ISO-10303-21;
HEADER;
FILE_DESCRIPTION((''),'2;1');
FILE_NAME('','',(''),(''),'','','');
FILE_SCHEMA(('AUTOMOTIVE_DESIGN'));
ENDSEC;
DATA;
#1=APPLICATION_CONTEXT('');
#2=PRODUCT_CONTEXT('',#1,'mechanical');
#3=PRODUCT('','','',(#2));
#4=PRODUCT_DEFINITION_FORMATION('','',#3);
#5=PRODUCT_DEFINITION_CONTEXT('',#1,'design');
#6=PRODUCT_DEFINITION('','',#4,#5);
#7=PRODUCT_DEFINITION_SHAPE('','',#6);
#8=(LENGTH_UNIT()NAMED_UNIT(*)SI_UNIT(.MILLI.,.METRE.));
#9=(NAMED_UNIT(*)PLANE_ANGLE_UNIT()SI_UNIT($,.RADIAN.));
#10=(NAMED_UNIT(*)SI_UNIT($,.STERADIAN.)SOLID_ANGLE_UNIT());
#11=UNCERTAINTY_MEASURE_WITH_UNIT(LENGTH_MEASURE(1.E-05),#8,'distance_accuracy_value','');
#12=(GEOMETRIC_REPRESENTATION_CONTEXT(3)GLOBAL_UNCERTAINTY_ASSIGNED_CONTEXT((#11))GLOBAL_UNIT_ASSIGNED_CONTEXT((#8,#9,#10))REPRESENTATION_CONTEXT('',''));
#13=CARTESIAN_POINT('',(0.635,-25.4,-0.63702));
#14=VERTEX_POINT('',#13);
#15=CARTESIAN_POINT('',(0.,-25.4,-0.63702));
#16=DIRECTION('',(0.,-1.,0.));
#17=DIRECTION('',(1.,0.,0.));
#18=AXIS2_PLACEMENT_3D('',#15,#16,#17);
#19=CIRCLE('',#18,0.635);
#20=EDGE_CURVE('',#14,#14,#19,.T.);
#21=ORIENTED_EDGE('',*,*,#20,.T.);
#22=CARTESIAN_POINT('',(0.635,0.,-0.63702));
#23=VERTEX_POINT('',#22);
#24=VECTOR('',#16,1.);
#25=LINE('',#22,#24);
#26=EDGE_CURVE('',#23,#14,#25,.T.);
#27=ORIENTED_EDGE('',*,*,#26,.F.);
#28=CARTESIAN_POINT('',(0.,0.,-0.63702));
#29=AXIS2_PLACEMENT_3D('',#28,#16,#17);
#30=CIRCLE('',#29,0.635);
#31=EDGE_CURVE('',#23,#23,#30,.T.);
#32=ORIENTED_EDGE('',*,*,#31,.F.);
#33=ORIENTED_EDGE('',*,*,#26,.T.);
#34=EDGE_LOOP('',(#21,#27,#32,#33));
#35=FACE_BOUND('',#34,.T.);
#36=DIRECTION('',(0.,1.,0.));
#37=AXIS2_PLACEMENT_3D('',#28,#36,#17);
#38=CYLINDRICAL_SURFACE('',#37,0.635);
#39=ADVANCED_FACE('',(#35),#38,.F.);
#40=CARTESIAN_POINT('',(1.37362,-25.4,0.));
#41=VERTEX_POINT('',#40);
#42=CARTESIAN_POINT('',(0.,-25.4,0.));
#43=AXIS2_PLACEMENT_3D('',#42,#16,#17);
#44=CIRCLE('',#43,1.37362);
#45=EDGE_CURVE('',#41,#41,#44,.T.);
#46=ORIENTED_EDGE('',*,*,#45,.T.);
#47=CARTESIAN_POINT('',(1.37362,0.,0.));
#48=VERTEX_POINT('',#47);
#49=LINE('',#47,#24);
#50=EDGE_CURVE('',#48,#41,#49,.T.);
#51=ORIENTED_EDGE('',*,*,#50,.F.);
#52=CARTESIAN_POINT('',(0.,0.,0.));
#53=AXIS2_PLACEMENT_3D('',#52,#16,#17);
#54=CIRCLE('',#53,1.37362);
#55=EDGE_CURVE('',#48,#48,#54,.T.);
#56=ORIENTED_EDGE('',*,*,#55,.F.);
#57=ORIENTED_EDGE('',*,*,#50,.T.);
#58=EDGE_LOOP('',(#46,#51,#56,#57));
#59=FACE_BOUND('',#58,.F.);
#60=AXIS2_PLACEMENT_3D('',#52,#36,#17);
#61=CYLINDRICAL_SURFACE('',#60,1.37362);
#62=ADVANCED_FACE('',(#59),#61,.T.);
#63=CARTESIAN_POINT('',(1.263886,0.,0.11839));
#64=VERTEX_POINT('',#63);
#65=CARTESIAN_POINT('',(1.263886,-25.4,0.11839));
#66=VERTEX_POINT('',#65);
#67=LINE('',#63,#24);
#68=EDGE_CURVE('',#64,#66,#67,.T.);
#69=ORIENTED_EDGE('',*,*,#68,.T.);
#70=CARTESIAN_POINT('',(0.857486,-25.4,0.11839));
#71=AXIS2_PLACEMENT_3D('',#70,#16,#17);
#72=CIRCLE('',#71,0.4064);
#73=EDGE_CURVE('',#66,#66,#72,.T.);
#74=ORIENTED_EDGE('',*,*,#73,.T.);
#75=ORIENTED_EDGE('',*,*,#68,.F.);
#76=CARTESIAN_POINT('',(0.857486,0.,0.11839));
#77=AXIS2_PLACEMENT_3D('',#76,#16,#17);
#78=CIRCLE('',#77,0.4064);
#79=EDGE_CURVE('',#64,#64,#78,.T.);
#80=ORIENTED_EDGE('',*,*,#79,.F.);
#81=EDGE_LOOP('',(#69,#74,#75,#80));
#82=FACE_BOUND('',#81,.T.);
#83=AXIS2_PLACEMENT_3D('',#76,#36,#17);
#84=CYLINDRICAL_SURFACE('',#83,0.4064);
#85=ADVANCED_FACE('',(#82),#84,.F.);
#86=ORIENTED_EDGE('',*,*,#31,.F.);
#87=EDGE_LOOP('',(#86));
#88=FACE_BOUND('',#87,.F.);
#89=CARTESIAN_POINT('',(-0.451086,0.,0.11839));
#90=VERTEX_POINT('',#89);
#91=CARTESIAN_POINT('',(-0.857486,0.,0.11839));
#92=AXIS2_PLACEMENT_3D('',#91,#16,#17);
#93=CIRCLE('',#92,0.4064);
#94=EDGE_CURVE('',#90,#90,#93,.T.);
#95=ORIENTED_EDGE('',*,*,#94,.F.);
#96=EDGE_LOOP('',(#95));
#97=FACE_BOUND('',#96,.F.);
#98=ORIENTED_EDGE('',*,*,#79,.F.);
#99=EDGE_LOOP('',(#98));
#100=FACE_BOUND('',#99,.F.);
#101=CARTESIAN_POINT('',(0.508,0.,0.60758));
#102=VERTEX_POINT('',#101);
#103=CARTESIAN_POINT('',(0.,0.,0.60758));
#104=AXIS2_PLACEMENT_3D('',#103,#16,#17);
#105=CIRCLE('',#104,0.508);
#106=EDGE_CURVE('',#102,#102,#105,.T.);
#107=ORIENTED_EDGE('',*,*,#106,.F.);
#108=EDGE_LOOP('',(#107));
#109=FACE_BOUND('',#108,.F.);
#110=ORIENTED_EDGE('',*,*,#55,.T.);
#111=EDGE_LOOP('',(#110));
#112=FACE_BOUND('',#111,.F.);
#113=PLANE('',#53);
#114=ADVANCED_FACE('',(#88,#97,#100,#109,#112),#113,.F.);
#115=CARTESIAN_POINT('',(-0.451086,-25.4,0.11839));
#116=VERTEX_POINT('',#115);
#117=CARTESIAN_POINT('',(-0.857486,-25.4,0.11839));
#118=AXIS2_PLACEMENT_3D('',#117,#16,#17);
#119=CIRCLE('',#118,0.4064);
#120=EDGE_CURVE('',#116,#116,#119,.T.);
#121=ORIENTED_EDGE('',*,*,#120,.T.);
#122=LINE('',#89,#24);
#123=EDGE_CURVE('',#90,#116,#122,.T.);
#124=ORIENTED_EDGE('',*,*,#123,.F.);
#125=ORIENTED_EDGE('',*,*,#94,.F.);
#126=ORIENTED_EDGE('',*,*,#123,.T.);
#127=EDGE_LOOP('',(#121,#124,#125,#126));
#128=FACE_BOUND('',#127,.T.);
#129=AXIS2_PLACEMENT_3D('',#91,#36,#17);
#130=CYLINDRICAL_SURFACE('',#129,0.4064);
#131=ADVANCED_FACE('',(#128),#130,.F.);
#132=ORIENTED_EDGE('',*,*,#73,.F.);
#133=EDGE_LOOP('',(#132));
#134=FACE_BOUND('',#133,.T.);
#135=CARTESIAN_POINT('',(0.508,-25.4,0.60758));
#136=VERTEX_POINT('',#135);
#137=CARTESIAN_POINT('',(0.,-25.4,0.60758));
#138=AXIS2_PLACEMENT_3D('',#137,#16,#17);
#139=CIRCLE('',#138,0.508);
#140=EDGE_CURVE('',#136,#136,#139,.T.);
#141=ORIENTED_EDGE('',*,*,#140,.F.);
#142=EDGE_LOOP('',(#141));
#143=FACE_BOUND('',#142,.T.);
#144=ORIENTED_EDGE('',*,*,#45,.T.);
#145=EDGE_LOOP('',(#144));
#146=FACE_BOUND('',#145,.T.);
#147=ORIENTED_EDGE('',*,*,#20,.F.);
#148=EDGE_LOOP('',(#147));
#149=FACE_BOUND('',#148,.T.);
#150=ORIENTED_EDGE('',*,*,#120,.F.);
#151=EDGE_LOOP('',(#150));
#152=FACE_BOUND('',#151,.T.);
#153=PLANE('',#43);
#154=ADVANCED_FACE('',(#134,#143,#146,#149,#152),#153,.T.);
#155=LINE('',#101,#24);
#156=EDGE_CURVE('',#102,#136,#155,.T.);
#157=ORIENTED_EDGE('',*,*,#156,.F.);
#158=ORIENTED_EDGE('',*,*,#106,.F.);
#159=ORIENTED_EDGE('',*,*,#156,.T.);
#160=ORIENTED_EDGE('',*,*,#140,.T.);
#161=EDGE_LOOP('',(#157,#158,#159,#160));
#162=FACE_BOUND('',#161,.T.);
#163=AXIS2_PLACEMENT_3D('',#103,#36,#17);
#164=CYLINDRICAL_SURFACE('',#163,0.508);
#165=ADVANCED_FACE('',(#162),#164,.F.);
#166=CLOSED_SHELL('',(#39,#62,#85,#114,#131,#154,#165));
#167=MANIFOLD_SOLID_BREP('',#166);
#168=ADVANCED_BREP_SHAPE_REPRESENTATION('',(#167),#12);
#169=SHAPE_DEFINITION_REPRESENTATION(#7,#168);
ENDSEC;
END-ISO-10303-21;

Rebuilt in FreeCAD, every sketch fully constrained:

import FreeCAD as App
import Part
import Sketcher

V = App.Vector
Q = App.Units.Quantity

doc = App.newDocument("Part")
body = doc.addObject("PartDesign::Body", "Body")

# Sketch on XZ plane
sketch1 = body.newObject("Sketcher::SketchObject", "Sketch")
sketch1.AttachmentSupport = (doc.getObject("XZ_Plane"), [""])
sketch1.MapMode = "FlatFace"
sketch1.addGeometry(Part.Circle(V(0, 0, 0), V(0, 0, 1), 1.37), False)
sketch1.addGeometry(Part.Circle(V(0, -0.64, 0), V(0, 0, 1), 0.64), False)
sketch1.addGeometry(Part.Circle(V(-0.86, 0.12, 0), V(0, 0, 1), 0.41), False)
sketch1.addGeometry(Part.Circle(V(0.86, 0.12, 0), V(0, 0, 1), 0.41), False)
sketch1.addGeometry(Part.Circle(V(0, 0.61, 0), V(0, 0, 1), 0.51), False)
sketch1.addConstraint(Sketcher.Constraint("Coincident", 0, 3, -1, 1))
sketch1.addConstraint(Sketcher.Constraint("Equal", 2, 3))
sketch1.addConstraint(Sketcher.Constraint("Symmetric", 2, 3, 3, 3, -2))
sketch1.addConstraint(Sketcher.Constraint("PointOnObject", 1, 3, -2))
sketch1.addConstraint(Sketcher.Constraint("PointOnObject", 4, 3, -2))
sketch1.addConstraint(Sketcher.Constraint("Diameter", 1, Q("0.05 in")))
sketch1.addConstraint(Sketcher.Constraint("Diameter", 4, Q("0.04 in")))
sketch1.addConstraint(Sketcher.Constraint("Diameter", 2, Q("0.032 in")))
sketch1.addConstraint(Sketcher.Constraint("Diameter", 0, Q("2.74724 mm")))
sketch1.addConstraint(Sketcher.Constraint("DistanceY", 1, 3, 4, 3, Q("0.049 in")))
sketch1.addConstraint(Sketcher.Constraint("DistanceY", 1, 3, -1, 1, Q("0.63702 mm")))
sketch1.addConstraint(Sketcher.Constraint("DistanceY", -1, 1, 2, 3, Q("0.11839 mm")))
sketch1.addConstraint(Sketcher.Constraint("DistanceX", 2, 3, 3, 3, Q("1.714972 mm")))
pad1 = body.newObject("PartDesign::Pad", "Pad")
pad1.Profile = sketch1
pad1.Length = Q("1 in")

doc.recompute()
